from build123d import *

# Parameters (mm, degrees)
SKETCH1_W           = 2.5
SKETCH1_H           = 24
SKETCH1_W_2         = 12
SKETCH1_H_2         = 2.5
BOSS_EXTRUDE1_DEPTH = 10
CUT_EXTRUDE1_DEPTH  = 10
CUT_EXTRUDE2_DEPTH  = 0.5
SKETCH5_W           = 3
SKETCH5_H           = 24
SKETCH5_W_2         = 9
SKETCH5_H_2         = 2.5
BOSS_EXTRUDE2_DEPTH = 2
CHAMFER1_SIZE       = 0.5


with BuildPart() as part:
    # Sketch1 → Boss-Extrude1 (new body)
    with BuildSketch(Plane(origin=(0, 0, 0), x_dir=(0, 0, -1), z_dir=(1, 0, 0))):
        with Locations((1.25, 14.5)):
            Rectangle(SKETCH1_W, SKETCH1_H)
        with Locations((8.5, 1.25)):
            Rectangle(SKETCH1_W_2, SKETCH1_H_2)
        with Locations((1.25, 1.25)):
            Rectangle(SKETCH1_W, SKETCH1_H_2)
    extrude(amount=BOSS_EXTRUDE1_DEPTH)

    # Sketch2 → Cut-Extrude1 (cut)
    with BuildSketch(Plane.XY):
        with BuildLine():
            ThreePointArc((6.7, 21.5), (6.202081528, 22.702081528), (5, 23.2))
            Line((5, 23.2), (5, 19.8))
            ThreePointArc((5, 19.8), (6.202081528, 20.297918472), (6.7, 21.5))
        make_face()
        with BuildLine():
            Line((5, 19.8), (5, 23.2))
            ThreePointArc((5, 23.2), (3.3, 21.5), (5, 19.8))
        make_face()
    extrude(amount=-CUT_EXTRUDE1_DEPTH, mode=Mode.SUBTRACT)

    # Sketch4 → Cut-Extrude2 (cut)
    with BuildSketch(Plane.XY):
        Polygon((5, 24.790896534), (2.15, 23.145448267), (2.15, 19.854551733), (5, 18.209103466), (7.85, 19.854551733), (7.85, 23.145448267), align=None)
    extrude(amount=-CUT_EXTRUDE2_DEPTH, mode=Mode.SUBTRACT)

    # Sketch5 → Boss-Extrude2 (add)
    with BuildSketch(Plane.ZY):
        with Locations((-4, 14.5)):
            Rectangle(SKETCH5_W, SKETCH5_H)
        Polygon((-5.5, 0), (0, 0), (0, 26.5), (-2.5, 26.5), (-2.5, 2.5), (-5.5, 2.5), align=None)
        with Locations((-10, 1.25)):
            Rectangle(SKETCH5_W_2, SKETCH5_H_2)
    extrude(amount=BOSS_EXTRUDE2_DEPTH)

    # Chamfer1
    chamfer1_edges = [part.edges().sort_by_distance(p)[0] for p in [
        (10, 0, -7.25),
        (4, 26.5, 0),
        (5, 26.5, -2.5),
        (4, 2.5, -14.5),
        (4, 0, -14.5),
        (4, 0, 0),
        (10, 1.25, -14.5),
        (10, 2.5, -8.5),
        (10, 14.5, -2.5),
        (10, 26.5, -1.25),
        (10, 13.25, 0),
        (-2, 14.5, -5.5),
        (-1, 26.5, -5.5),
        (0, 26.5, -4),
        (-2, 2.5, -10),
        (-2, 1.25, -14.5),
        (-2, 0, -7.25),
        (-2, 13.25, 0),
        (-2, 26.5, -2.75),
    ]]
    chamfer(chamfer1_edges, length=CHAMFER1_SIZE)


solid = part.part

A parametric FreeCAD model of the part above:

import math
import FreeCAD as App
import Part
import Sketcher

V = App.Vector
Q = App.Units.Quantity


def edges_at(feature, points):
    """Names of the edges that pass closest to the given points."""
    edges = feature.Shape.Edges
    near = lambda p: min(range(len(edges)), key=lambda i: edges[i].distToShape(Part.Vertex(*p))[0])
    return sorted({f"Edge{near(p) + 1}" for p in points})

doc = App.newDocument("Part")
body = doc.addObject("PartDesign::Body", "Body")

sketch1 = doc.addObject("Sketcher::SketchObject", "Sketch")
body.addObject(sketch1)
sketch1.AttachmentSupport = (doc.YZ_Plane, [""])
sketch1.MapMode = "FlatFace"
sketch1.addGeometry(Part.LineSegment(V(26.5, 0, 0), V(0, 0, 0)), False)
sketch1.addGeometry(Part.LineSegment(V(0, 0, 0), V(0, -14.5, 0)), False)
sketch1.addGeometry(Part.LineSegment(V(0, -14.5, 0), V(2.5, -14.5, 0)), False)
sketch1.addGeometry(Part.LineSegment(V(2.5, -14.5, 0), V(2.5, -2.5, 0)), False)
sketch1.addGeometry(Part.LineSegment(V(2.5, -2.5, 0), V(26.5, -2.5, 0)), False)
sketch1.addGeometry(Part.LineSegment(V(26.5, -2.5, 0), V(26.5, 0, 0)), False)
sketch1.addConstraint(Sketcher.Constraint("Coincident", 0, 2, 1, 1))
sketch1.addConstraint(Sketcher.Constraint("Coincident", 1, 2, 2, 1))
sketch1.addConstraint(Sketcher.Constraint("Coincident", 2, 2, 3, 1))
sketch1.addConstraint(Sketcher.Constraint("Coincident", 3, 2, 4, 1))
sketch1.addConstraint(Sketcher.Constraint("Coincident", 4, 2, 5, 1))
sketch1.addConstraint(Sketcher.Constraint("Coincident", 5, 2, 0, 1))
sketch1.addConstraint(Sketcher.Constraint("Horizontal", 0))
sketch1.addConstraint(Sketcher.Constraint("Vertical", 1))
sketch1.addConstraint(Sketcher.Constraint("Horizontal", 2))
sketch1.addConstraint(Sketcher.Constraint("Vertical", 3))
sketch1.addConstraint(Sketcher.Constraint("Horizontal", 4))
sketch1.addConstraint(Sketcher.Constraint("Vertical", 5))
sketch1.addConstraint(Sketcher.Constraint("Coincident", 0, 2, -1, 1))
sketch1.addConstraint(Sketcher.Constraint("Equal", 2, 5))
sketch1.addConstraint(Sketcher.Constraint("DistanceX", 4, 1, 4, 2, Q("24 mm")))
sketch1.addConstraint(Sketcher.Constraint("DistanceY", 3, 1, 3, 2, Q("12 mm")))
sketch1.addConstraint(Sketcher.Constraint("DistanceX", 0, 2, 0, 1, Q("26.5 mm")))
pad1 = doc.addObject("PartDesign::Pad", "Pad")
body.addObject(pad1)
pad1.Profile = sketch1
pad1.Length = 10

sketch2 = doc.addObject("Sketcher::SketchObject", "Sketch001")
body.addObject(sketch2)
sketch2.AttachmentSupport = (doc.XY_Plane, [""])
sketch2.MapMode = "FlatFace"
sketch2.addGeometry(Part.ArcOfCircle(Part.Circle(V(5, 21.5, 0), V(0, 0, 1), 1.7), math.radians(0), math.radians(90)), False)
sketch2.addGeometry(Part.ArcOfCircle(Part.Circle(V(5, 21.5, 0), V(0, 0, 1), 1.7), math.radians(90), math.radians(270)), False)
sketch2.addGeometry(Part.ArcOfCircle(Part.Circle(V(5, 21.5, 0), V(0, 0, 1), 1.7), math.radians(-90), math.radians(0)), False)
sketch2.addConstraint(Sketcher.Constraint("Tangent", 0, 2, 1, 1))
sketch2.addConstraint(Sketcher.Constraint("Tangent", 1, 2, 2, 1))
sketch2.addConstraint(Sketcher.Constraint("Tangent", 2, 2, 0, 1))
sketch2.addConstraint(Sketcher.Constraint("Horizontal", 1, 3, 2, 2))
sketch2.addConstraint(Sketcher.Constraint("Vertical", 2, 3, 0, 2))
sketch2.addConstraint(Sketcher.Constraint("Vertical", 0, 2, 1, 2))
sketch2.addConstraint(Sketcher.Constraint("Radius", 0, Q("1.7 mm")))
sketch2.addConstraint(Sketcher.Constraint("DistanceX", -1, 1, 0, 3, Q("5 mm")))
sketch2.addConstraint(Sketcher.Constraint("DistanceY", -1, 1, 0, 3, Q("21.5 mm")))
pocket1 = doc.addObject("PartDesign::Pocket", "Pocket")
body.addObject(pocket1)
pocket1.Profile = sketch2
pocket1.Length = 10

sketch3 = doc.addObject("Sketcher::SketchObject", "Sketch002")
body.addObject(sketch3)
sketch3.AttachmentSupport = (doc.XY_Plane, [""])
sketch3.MapMode = "FlatFace"
sketch3.addGeometry(Part.LineSegment(V(5, 24.8, 0), V(2.1, 23.1, 0)), False)
sketch3.addGeometry(Part.LineSegment(V(2.1, 23.1, 0), V(2.1, 19.9, 0)), False)
sketch3.addGeometry(Part.LineSegment(V(2.1, 19.9, 0), V(5, 18.2, 0)), False)
sketch3.addGeometry(Part.LineSegment(V(5, 18.2, 0), V(7.8, 19.9, 0)), False)
sketch3.addGeometry(Part.LineSegment(V(7.8, 19.9, 0), V(7.8, 23.1, 0)), False)
sketch3.addGeometry(Part.LineSegment(V(7.8, 23.1, 0), V(5, 24.8, 0)), False)
sketch3.addConstraint(Sketcher.Constraint("Coincident", 0, 2, 1, 1))
sketch3.addConstraint(Sketcher.Constraint("Coincident", 1, 2, 2, 1))
sketch3.addConstraint(Sketcher.Constraint("Coincident", 2, 2, 3, 1))
sketch3.addConstraint(Sketcher.Constraint("Coincident", 3, 2, 4, 1))
sketch3.addConstraint(Sketcher.Constraint("Coincident", 4, 2, 5, 1))
sketch3.addConstraint(Sketcher.Constraint("Coincident", 5, 2, 0, 1))
sketch3.addConstraint(Sketcher.Constraint("Vertical", 1))
sketch3.addConstraint(Sketcher.Constraint("Vertical", 4))
sketch3.addConstraint(Sketcher.Constraint("Parallel", 0, 3))
sketch3.addConstraint(Sketcher.Constraint("Parallel", 2, 5))
sketch3.addConstraint(Sketcher.Constraint("Horizontal", 1, 2, 3, 2))
sketch3.addConstraint(Sketcher.Constraint("Horizontal", 0, 2, 4, 2))
sketch3.addConstraint(Sketcher.Constraint("Vertical", 2, 2, 5, 2))
sketch3.addConstraint(Sketcher.Constraint("Angle", 0, Q("-150 deg")))
sketch3.addConstraint(Sketcher.Constraint("DistanceX", -1, 1, 2, 2, Q("5 mm")))
sketch3.addConstraint(Sketcher.Constraint("DistanceX", 1, 2, 3, 2, Q("5.7 mm")))
sketch3.addConstraint(Sketcher.Constraint("DistanceY", 1, 2, 1, 1, Q("3.290897 mm")))
sketch3.addConstraint(Sketcher.Constraint("DistanceY", -1, 1, 0, 2, Q("23.145448 mm")))
pocket2 = doc.addObject("PartDesign::Pocket", "Pocket001")
body.addObject(pocket2)
pocket2.Profile = sketch3
pocket2.Length = 0.5

sketch4 = doc.addObject("Sketcher::SketchObject", "Sketch003")
body.addObject(sketch4)
sketch4.AttachmentSupport = (doc.YZ_Plane, [""])
sketch4.MapMode = "FlatFace"
sketch4.addGeometry(Part.LineSegment(V(26.5, -5.5, 0), V(2.5, -5.5, 0)), False)
sketch4.addGeometry(Part.LineSegment(V(2.5, -5.5, 0), V(2.5, -14.5, 0)), False)
sketch4.addGeometry(Part.LineSegment(V(2.5, -14.5, 0), V(0, -14.5, 0)), False)
sketch4.addGeometry(Part.LineSegment(V(0, -14.5, 0), V(0, 0, 0)), False)
sketch4.addGeometry(Part.LineSegment(V(0, 0, 0), V(26.5, 0, 0)), False)
sketch4.addGeometry(Part.LineSegment(V(26.5, 0, 0), V(26.5, -5.5, 0)), False)
sketch4.addConstraint(Sketcher.Constraint("Coincident", 0, 2, 1, 1))
sketch4.addConstraint(Sketcher.Constraint("Coincident", 1, 2, 2, 1))
sketch4.addConstraint(Sketcher.Constraint("Coincident", 2, 2, 3, 1))
sketch4.addConstraint(Sketcher.Constraint("Coincident", 3, 2, 4, 1))
sketch4.addConstraint(Sketcher.Constraint("Coincident", 4, 2, 5, 1))
sketch4.addConstraint(Sketcher.Constraint("Coincident", 5, 2, 0, 1))
sketch4.addConstraint(Sketcher.Constraint("Horizontal", 0))
sketch4.addConstraint(Sketcher.Constraint("Vertical", 1))
sketch4.addConstraint(Sketcher.Constraint("Horizontal", 2))
sketch4.addConstraint(Sketcher.Constraint("Vertical", 3))
sketch4.addConstraint(Sketcher.Constraint("Horizontal", 4))
sketch4.addConstraint(Sketcher.Constraint("Vertical", 5))
sketch4.addConstraint(Sketcher.Constraint("Coincident", 3, 2, -1, 1))
sketch4.addConstraint(Sketcher.Constraint("DistanceX", 0, 2, 0, 1, Q("24 mm")))
sketch4.addConstraint(Sketcher.Constraint("DistanceY", 1, 2, 1, 1, Q("9 mm")))
sketch4.addConstraint(Sketcher.Constraint("DistanceX", 2, 2, 2, 1, Q("2.5 mm")))
sketch4.addConstraint(Sketcher.Constraint("DistanceY", 3, 1, 3, 2, Q("14.5 mm")))
pad2 = doc.addObject("PartDesign::Pad", "Pad001")
body.addObject(pad2)
pad2.Profile = sketch4
pad2.Length = 2
pad2.Reversed = True
doc.recompute()

chamfer = doc.addObject("PartDesign::Chamfer", "Chamfer")
body.addObject(chamfer)
chamfer.Base = (pad2, edges_at(pad2, [
    (10, 0, -7.25),
    (4, 26.5, 0),
    (5, 26.5, -2.5),
    (4, 2.5, -14.5),
    (4, 0, -14.5),
    (4, 0, 0),
    (10, 1.25, -14.5),
    (10, 2.5, -8.5),
    (10, 14.5, -2.5),
    (10, 26.5, -1.25),
    (10, 13.25, 0),
    (-2, 14.5, -5.5),
    (-1, 26.5, -5.5),
    (0, 26.5, -4),
    (-2, 2.5, -10),
    (-2, 1.25, -14.5),
    (-2, 0, -7.25),
    (-2, 13.25, 0),
    (-2, 26.5, -2.75),
]))
chamfer.Size = 0.5

doc.recompute()
